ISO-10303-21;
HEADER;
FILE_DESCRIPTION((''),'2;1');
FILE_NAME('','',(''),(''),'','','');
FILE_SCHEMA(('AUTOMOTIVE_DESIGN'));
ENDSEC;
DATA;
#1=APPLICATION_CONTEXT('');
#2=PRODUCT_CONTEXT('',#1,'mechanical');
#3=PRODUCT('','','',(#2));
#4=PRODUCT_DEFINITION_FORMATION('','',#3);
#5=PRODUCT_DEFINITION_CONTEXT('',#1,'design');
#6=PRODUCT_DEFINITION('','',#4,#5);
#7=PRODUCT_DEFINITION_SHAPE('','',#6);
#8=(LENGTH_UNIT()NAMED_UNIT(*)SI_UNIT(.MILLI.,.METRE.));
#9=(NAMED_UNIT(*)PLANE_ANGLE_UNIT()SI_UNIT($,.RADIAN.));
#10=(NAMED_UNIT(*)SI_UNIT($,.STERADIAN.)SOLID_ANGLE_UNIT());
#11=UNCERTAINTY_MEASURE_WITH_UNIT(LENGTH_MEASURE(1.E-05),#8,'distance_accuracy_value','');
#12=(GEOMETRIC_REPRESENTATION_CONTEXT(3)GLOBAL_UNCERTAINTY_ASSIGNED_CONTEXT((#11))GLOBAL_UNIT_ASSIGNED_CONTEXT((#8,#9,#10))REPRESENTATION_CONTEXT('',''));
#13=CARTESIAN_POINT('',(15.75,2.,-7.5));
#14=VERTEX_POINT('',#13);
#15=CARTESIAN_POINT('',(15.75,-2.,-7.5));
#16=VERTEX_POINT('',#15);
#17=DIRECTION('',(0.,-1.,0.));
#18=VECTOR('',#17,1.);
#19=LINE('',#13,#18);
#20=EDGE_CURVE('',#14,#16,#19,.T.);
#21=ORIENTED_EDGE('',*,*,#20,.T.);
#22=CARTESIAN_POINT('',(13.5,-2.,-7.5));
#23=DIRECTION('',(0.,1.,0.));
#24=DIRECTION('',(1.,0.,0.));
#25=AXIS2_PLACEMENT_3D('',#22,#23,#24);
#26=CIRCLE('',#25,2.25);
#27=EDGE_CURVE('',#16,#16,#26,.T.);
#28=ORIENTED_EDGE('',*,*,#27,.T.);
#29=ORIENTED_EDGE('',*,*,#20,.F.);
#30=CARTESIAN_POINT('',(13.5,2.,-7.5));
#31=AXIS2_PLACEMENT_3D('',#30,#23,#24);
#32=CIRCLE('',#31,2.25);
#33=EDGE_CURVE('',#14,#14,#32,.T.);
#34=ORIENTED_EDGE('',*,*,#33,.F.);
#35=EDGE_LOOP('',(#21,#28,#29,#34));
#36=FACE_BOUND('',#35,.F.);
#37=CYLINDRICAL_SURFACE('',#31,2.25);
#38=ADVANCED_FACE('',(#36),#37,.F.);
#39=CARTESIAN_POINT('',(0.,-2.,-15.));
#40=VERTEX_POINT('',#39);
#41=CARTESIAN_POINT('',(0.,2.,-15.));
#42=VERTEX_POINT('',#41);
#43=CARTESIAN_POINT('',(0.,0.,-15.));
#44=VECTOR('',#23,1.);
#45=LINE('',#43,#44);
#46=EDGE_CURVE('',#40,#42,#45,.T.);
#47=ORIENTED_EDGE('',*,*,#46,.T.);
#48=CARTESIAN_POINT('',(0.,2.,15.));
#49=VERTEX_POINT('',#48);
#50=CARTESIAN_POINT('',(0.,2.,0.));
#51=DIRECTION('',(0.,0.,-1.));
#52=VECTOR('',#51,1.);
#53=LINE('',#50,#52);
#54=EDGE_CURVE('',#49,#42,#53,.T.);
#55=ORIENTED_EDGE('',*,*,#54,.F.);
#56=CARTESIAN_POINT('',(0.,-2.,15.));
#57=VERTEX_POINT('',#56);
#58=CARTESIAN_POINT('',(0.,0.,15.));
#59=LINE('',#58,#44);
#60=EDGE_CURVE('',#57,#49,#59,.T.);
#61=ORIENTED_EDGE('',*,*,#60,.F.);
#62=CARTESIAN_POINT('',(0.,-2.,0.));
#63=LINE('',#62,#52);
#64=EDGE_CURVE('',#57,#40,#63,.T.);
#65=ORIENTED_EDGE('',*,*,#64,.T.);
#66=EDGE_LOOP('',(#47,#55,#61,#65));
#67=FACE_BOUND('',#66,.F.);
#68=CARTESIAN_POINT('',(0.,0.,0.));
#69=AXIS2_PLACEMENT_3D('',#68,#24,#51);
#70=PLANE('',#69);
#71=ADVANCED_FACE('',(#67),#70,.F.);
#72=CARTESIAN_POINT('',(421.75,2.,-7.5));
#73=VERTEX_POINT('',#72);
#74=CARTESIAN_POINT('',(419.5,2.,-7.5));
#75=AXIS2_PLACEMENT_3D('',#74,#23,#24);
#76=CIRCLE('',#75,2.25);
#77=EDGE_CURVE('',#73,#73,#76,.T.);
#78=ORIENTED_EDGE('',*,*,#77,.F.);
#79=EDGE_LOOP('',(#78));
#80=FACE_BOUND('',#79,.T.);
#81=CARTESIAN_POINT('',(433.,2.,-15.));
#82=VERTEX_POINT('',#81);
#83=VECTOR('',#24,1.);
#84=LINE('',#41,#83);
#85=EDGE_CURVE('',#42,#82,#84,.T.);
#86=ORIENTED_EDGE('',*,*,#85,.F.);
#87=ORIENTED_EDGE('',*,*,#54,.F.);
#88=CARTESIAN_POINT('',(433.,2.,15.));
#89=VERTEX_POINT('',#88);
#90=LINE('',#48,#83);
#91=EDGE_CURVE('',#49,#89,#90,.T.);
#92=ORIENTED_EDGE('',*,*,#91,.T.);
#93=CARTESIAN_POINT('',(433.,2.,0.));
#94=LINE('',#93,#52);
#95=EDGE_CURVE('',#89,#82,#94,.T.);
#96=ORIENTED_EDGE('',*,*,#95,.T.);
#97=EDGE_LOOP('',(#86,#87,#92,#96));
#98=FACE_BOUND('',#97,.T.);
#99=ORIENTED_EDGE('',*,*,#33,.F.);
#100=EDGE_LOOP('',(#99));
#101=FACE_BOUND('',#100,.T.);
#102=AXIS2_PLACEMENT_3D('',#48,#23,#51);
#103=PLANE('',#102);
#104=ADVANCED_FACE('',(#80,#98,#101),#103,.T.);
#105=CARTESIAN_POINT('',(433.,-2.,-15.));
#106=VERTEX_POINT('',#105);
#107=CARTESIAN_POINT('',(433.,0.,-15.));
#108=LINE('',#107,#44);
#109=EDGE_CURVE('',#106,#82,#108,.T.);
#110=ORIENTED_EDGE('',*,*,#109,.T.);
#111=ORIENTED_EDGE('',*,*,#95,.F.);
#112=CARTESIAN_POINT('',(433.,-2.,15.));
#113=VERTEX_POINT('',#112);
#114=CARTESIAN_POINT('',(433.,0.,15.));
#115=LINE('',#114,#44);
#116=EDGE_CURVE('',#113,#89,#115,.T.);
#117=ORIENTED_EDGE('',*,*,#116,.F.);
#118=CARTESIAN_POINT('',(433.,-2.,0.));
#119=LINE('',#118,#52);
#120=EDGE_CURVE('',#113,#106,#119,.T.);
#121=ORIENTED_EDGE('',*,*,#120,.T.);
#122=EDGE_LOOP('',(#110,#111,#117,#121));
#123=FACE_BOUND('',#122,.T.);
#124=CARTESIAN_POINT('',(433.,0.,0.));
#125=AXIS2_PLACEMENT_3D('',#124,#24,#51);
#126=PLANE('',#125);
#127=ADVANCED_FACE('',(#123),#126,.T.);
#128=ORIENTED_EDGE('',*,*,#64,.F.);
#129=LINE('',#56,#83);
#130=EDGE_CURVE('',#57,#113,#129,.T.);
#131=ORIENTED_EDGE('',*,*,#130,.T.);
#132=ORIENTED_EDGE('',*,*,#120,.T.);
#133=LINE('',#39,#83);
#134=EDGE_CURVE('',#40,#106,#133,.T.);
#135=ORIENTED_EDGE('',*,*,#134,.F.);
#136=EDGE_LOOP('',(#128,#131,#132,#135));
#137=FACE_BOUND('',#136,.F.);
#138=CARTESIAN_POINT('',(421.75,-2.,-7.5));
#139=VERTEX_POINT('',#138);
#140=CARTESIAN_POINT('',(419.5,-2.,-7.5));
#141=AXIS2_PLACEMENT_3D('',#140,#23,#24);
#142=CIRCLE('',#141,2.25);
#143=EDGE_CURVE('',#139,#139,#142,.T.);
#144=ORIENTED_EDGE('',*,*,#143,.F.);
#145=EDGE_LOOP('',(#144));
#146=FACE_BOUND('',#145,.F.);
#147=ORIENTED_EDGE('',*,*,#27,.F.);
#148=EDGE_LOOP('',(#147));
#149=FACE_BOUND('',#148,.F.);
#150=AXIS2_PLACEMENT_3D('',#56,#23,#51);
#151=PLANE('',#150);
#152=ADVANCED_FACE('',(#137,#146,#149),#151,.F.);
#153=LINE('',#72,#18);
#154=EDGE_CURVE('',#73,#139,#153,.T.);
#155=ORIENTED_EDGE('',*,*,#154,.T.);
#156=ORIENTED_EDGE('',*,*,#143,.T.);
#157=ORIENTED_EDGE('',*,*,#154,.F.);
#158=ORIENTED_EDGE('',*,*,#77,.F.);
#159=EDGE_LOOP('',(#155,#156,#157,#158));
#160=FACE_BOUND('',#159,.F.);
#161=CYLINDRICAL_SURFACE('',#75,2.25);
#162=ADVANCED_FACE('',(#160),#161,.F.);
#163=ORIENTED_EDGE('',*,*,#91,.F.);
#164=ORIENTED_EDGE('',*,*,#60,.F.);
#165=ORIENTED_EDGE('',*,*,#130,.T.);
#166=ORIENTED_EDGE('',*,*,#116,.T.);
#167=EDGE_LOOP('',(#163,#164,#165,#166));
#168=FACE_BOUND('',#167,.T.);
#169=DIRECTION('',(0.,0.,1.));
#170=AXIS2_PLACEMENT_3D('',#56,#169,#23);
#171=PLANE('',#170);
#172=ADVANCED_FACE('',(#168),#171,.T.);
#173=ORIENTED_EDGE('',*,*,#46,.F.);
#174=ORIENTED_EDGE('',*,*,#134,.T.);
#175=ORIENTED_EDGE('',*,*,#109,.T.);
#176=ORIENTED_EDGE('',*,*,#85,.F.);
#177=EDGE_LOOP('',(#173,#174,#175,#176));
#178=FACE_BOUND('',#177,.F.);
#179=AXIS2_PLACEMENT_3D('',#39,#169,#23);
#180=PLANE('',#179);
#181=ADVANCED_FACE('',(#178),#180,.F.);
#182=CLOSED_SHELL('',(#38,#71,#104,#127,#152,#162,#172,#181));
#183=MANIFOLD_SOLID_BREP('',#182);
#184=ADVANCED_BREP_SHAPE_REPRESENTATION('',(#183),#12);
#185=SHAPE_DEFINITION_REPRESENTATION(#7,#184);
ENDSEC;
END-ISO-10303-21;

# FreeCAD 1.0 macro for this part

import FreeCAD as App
import Part
import Sketcher

doc = App.newDocument("Part")
body = doc.addObject("PartDesign::Body", "Body")

# Sketch on YZ plane
sketch1 = body.newObject("Sketcher::SketchObject", "Sketch")
sketch1.AttachmentSupport = (doc.getObject("YZ_Plane"), [""])
sketch1.MapMode = "FlatFace"
sketch1.addGeometry(Part.LineSegment(App.Vector(2, 15, 0), App.Vector(-2, 15, 0)), False)
sketch1.addGeometry(Part.LineSegment(App.Vector(-2, 15, 0), App.Vector(-2, -15, 0)), False)
sketch1.addGeometry(Part.LineSegment(App.Vector(-2, -15, 0), App.Vector(2, -15, 0)), False)
sketch1.addGeometry(Part.LineSegment(App.Vector(2, -15, 0), App.Vector(2, 15, 0)), False)
sketch1.addConstraint(Sketcher.Constraint("Coincident", 0, 2, 1, 1))
sketch1.addConstraint(Sketcher.Constraint("Coincident", 1, 2, 2, 1))
sketch1.addConstraint(Sketcher.Constraint("Coincident", 2, 2, 3, 1))
sketch1.addConstraint(Sketcher.Constraint("Coincident", 3, 2, 0, 1))
sketch1.addConstraint(Sketcher.Constraint("Horizontal", 0))
sketch1.addConstraint(Sketcher.Constraint("Vertical", 1))
sketch1.addConstraint(Sketcher.Constraint("Horizontal", 2))
sketch1.addConstraint(Sketcher.Constraint("Vertical", 3))
sketch1.addConstraint(Sketcher.Constraint("Symmetric", 0, 2, 2, 2, -1, 1))
sketch1.addConstraint(Sketcher.Constraint("DistanceX", 0, 2, 0, 1, 4.0))
sketch1.addConstraint(Sketcher.Constraint("DistanceY", 1, 2, 1, 1, 30.0))
pad1 = body.newObject("PartDesign::Pad", "Pad")
pad1.Profile = sketch1
pad1.Length = 433

# Sketch on XZ plane
sketch2 = body.newObject("Sketcher::SketchObject", "Sketch001")
sketch2.AttachmentSupport = (doc.getObject("XZ_Plane"), [""])
sketch2.MapMode = "FlatFace"
sketch2.AttachmentOffset = App.Placement(App.Vector(0, 0, -2), App.Rotation())
sketch2.addGeometry(Part.Circle(App.Vector(13.5, -7.5, 0), App.Vector(0, 0, 1), 2.2), False)
sketch2.addGeometry(Part.Circle(App.Vector(419.5, -7.5, 0), App.Vector(0, 0, 1), 2.2), False)
sketch2.addConstraint(Sketcher.Constraint("Equal", 0, 1))
sketch2.addConstraint(Sketcher.Constraint("Horizontal", 0, 3, 1, 3))
sketch2.addConstraint(Sketcher.Constraint("Diameter", 0, 4.5))
sketch2.addConstraint(Sketcher.Constraint("DistanceX", 0, 3, 1, 3, 406.0))
sketch2.addConstraint(Sketcher.Constraint("DistanceX", -1, 1, 0, 3, 13.5))
sketch2.addConstraint(Sketcher.Constraint("DistanceY", 0, 3, -1, 1, 7.5))
pocket1 = body.newObject("PartDesign::Pocket", "Pocket")
pocket1.Profile = sketch2
pocket1.Type = "ThroughAll"
pocket1.Reversed = True

doc.recompute()
